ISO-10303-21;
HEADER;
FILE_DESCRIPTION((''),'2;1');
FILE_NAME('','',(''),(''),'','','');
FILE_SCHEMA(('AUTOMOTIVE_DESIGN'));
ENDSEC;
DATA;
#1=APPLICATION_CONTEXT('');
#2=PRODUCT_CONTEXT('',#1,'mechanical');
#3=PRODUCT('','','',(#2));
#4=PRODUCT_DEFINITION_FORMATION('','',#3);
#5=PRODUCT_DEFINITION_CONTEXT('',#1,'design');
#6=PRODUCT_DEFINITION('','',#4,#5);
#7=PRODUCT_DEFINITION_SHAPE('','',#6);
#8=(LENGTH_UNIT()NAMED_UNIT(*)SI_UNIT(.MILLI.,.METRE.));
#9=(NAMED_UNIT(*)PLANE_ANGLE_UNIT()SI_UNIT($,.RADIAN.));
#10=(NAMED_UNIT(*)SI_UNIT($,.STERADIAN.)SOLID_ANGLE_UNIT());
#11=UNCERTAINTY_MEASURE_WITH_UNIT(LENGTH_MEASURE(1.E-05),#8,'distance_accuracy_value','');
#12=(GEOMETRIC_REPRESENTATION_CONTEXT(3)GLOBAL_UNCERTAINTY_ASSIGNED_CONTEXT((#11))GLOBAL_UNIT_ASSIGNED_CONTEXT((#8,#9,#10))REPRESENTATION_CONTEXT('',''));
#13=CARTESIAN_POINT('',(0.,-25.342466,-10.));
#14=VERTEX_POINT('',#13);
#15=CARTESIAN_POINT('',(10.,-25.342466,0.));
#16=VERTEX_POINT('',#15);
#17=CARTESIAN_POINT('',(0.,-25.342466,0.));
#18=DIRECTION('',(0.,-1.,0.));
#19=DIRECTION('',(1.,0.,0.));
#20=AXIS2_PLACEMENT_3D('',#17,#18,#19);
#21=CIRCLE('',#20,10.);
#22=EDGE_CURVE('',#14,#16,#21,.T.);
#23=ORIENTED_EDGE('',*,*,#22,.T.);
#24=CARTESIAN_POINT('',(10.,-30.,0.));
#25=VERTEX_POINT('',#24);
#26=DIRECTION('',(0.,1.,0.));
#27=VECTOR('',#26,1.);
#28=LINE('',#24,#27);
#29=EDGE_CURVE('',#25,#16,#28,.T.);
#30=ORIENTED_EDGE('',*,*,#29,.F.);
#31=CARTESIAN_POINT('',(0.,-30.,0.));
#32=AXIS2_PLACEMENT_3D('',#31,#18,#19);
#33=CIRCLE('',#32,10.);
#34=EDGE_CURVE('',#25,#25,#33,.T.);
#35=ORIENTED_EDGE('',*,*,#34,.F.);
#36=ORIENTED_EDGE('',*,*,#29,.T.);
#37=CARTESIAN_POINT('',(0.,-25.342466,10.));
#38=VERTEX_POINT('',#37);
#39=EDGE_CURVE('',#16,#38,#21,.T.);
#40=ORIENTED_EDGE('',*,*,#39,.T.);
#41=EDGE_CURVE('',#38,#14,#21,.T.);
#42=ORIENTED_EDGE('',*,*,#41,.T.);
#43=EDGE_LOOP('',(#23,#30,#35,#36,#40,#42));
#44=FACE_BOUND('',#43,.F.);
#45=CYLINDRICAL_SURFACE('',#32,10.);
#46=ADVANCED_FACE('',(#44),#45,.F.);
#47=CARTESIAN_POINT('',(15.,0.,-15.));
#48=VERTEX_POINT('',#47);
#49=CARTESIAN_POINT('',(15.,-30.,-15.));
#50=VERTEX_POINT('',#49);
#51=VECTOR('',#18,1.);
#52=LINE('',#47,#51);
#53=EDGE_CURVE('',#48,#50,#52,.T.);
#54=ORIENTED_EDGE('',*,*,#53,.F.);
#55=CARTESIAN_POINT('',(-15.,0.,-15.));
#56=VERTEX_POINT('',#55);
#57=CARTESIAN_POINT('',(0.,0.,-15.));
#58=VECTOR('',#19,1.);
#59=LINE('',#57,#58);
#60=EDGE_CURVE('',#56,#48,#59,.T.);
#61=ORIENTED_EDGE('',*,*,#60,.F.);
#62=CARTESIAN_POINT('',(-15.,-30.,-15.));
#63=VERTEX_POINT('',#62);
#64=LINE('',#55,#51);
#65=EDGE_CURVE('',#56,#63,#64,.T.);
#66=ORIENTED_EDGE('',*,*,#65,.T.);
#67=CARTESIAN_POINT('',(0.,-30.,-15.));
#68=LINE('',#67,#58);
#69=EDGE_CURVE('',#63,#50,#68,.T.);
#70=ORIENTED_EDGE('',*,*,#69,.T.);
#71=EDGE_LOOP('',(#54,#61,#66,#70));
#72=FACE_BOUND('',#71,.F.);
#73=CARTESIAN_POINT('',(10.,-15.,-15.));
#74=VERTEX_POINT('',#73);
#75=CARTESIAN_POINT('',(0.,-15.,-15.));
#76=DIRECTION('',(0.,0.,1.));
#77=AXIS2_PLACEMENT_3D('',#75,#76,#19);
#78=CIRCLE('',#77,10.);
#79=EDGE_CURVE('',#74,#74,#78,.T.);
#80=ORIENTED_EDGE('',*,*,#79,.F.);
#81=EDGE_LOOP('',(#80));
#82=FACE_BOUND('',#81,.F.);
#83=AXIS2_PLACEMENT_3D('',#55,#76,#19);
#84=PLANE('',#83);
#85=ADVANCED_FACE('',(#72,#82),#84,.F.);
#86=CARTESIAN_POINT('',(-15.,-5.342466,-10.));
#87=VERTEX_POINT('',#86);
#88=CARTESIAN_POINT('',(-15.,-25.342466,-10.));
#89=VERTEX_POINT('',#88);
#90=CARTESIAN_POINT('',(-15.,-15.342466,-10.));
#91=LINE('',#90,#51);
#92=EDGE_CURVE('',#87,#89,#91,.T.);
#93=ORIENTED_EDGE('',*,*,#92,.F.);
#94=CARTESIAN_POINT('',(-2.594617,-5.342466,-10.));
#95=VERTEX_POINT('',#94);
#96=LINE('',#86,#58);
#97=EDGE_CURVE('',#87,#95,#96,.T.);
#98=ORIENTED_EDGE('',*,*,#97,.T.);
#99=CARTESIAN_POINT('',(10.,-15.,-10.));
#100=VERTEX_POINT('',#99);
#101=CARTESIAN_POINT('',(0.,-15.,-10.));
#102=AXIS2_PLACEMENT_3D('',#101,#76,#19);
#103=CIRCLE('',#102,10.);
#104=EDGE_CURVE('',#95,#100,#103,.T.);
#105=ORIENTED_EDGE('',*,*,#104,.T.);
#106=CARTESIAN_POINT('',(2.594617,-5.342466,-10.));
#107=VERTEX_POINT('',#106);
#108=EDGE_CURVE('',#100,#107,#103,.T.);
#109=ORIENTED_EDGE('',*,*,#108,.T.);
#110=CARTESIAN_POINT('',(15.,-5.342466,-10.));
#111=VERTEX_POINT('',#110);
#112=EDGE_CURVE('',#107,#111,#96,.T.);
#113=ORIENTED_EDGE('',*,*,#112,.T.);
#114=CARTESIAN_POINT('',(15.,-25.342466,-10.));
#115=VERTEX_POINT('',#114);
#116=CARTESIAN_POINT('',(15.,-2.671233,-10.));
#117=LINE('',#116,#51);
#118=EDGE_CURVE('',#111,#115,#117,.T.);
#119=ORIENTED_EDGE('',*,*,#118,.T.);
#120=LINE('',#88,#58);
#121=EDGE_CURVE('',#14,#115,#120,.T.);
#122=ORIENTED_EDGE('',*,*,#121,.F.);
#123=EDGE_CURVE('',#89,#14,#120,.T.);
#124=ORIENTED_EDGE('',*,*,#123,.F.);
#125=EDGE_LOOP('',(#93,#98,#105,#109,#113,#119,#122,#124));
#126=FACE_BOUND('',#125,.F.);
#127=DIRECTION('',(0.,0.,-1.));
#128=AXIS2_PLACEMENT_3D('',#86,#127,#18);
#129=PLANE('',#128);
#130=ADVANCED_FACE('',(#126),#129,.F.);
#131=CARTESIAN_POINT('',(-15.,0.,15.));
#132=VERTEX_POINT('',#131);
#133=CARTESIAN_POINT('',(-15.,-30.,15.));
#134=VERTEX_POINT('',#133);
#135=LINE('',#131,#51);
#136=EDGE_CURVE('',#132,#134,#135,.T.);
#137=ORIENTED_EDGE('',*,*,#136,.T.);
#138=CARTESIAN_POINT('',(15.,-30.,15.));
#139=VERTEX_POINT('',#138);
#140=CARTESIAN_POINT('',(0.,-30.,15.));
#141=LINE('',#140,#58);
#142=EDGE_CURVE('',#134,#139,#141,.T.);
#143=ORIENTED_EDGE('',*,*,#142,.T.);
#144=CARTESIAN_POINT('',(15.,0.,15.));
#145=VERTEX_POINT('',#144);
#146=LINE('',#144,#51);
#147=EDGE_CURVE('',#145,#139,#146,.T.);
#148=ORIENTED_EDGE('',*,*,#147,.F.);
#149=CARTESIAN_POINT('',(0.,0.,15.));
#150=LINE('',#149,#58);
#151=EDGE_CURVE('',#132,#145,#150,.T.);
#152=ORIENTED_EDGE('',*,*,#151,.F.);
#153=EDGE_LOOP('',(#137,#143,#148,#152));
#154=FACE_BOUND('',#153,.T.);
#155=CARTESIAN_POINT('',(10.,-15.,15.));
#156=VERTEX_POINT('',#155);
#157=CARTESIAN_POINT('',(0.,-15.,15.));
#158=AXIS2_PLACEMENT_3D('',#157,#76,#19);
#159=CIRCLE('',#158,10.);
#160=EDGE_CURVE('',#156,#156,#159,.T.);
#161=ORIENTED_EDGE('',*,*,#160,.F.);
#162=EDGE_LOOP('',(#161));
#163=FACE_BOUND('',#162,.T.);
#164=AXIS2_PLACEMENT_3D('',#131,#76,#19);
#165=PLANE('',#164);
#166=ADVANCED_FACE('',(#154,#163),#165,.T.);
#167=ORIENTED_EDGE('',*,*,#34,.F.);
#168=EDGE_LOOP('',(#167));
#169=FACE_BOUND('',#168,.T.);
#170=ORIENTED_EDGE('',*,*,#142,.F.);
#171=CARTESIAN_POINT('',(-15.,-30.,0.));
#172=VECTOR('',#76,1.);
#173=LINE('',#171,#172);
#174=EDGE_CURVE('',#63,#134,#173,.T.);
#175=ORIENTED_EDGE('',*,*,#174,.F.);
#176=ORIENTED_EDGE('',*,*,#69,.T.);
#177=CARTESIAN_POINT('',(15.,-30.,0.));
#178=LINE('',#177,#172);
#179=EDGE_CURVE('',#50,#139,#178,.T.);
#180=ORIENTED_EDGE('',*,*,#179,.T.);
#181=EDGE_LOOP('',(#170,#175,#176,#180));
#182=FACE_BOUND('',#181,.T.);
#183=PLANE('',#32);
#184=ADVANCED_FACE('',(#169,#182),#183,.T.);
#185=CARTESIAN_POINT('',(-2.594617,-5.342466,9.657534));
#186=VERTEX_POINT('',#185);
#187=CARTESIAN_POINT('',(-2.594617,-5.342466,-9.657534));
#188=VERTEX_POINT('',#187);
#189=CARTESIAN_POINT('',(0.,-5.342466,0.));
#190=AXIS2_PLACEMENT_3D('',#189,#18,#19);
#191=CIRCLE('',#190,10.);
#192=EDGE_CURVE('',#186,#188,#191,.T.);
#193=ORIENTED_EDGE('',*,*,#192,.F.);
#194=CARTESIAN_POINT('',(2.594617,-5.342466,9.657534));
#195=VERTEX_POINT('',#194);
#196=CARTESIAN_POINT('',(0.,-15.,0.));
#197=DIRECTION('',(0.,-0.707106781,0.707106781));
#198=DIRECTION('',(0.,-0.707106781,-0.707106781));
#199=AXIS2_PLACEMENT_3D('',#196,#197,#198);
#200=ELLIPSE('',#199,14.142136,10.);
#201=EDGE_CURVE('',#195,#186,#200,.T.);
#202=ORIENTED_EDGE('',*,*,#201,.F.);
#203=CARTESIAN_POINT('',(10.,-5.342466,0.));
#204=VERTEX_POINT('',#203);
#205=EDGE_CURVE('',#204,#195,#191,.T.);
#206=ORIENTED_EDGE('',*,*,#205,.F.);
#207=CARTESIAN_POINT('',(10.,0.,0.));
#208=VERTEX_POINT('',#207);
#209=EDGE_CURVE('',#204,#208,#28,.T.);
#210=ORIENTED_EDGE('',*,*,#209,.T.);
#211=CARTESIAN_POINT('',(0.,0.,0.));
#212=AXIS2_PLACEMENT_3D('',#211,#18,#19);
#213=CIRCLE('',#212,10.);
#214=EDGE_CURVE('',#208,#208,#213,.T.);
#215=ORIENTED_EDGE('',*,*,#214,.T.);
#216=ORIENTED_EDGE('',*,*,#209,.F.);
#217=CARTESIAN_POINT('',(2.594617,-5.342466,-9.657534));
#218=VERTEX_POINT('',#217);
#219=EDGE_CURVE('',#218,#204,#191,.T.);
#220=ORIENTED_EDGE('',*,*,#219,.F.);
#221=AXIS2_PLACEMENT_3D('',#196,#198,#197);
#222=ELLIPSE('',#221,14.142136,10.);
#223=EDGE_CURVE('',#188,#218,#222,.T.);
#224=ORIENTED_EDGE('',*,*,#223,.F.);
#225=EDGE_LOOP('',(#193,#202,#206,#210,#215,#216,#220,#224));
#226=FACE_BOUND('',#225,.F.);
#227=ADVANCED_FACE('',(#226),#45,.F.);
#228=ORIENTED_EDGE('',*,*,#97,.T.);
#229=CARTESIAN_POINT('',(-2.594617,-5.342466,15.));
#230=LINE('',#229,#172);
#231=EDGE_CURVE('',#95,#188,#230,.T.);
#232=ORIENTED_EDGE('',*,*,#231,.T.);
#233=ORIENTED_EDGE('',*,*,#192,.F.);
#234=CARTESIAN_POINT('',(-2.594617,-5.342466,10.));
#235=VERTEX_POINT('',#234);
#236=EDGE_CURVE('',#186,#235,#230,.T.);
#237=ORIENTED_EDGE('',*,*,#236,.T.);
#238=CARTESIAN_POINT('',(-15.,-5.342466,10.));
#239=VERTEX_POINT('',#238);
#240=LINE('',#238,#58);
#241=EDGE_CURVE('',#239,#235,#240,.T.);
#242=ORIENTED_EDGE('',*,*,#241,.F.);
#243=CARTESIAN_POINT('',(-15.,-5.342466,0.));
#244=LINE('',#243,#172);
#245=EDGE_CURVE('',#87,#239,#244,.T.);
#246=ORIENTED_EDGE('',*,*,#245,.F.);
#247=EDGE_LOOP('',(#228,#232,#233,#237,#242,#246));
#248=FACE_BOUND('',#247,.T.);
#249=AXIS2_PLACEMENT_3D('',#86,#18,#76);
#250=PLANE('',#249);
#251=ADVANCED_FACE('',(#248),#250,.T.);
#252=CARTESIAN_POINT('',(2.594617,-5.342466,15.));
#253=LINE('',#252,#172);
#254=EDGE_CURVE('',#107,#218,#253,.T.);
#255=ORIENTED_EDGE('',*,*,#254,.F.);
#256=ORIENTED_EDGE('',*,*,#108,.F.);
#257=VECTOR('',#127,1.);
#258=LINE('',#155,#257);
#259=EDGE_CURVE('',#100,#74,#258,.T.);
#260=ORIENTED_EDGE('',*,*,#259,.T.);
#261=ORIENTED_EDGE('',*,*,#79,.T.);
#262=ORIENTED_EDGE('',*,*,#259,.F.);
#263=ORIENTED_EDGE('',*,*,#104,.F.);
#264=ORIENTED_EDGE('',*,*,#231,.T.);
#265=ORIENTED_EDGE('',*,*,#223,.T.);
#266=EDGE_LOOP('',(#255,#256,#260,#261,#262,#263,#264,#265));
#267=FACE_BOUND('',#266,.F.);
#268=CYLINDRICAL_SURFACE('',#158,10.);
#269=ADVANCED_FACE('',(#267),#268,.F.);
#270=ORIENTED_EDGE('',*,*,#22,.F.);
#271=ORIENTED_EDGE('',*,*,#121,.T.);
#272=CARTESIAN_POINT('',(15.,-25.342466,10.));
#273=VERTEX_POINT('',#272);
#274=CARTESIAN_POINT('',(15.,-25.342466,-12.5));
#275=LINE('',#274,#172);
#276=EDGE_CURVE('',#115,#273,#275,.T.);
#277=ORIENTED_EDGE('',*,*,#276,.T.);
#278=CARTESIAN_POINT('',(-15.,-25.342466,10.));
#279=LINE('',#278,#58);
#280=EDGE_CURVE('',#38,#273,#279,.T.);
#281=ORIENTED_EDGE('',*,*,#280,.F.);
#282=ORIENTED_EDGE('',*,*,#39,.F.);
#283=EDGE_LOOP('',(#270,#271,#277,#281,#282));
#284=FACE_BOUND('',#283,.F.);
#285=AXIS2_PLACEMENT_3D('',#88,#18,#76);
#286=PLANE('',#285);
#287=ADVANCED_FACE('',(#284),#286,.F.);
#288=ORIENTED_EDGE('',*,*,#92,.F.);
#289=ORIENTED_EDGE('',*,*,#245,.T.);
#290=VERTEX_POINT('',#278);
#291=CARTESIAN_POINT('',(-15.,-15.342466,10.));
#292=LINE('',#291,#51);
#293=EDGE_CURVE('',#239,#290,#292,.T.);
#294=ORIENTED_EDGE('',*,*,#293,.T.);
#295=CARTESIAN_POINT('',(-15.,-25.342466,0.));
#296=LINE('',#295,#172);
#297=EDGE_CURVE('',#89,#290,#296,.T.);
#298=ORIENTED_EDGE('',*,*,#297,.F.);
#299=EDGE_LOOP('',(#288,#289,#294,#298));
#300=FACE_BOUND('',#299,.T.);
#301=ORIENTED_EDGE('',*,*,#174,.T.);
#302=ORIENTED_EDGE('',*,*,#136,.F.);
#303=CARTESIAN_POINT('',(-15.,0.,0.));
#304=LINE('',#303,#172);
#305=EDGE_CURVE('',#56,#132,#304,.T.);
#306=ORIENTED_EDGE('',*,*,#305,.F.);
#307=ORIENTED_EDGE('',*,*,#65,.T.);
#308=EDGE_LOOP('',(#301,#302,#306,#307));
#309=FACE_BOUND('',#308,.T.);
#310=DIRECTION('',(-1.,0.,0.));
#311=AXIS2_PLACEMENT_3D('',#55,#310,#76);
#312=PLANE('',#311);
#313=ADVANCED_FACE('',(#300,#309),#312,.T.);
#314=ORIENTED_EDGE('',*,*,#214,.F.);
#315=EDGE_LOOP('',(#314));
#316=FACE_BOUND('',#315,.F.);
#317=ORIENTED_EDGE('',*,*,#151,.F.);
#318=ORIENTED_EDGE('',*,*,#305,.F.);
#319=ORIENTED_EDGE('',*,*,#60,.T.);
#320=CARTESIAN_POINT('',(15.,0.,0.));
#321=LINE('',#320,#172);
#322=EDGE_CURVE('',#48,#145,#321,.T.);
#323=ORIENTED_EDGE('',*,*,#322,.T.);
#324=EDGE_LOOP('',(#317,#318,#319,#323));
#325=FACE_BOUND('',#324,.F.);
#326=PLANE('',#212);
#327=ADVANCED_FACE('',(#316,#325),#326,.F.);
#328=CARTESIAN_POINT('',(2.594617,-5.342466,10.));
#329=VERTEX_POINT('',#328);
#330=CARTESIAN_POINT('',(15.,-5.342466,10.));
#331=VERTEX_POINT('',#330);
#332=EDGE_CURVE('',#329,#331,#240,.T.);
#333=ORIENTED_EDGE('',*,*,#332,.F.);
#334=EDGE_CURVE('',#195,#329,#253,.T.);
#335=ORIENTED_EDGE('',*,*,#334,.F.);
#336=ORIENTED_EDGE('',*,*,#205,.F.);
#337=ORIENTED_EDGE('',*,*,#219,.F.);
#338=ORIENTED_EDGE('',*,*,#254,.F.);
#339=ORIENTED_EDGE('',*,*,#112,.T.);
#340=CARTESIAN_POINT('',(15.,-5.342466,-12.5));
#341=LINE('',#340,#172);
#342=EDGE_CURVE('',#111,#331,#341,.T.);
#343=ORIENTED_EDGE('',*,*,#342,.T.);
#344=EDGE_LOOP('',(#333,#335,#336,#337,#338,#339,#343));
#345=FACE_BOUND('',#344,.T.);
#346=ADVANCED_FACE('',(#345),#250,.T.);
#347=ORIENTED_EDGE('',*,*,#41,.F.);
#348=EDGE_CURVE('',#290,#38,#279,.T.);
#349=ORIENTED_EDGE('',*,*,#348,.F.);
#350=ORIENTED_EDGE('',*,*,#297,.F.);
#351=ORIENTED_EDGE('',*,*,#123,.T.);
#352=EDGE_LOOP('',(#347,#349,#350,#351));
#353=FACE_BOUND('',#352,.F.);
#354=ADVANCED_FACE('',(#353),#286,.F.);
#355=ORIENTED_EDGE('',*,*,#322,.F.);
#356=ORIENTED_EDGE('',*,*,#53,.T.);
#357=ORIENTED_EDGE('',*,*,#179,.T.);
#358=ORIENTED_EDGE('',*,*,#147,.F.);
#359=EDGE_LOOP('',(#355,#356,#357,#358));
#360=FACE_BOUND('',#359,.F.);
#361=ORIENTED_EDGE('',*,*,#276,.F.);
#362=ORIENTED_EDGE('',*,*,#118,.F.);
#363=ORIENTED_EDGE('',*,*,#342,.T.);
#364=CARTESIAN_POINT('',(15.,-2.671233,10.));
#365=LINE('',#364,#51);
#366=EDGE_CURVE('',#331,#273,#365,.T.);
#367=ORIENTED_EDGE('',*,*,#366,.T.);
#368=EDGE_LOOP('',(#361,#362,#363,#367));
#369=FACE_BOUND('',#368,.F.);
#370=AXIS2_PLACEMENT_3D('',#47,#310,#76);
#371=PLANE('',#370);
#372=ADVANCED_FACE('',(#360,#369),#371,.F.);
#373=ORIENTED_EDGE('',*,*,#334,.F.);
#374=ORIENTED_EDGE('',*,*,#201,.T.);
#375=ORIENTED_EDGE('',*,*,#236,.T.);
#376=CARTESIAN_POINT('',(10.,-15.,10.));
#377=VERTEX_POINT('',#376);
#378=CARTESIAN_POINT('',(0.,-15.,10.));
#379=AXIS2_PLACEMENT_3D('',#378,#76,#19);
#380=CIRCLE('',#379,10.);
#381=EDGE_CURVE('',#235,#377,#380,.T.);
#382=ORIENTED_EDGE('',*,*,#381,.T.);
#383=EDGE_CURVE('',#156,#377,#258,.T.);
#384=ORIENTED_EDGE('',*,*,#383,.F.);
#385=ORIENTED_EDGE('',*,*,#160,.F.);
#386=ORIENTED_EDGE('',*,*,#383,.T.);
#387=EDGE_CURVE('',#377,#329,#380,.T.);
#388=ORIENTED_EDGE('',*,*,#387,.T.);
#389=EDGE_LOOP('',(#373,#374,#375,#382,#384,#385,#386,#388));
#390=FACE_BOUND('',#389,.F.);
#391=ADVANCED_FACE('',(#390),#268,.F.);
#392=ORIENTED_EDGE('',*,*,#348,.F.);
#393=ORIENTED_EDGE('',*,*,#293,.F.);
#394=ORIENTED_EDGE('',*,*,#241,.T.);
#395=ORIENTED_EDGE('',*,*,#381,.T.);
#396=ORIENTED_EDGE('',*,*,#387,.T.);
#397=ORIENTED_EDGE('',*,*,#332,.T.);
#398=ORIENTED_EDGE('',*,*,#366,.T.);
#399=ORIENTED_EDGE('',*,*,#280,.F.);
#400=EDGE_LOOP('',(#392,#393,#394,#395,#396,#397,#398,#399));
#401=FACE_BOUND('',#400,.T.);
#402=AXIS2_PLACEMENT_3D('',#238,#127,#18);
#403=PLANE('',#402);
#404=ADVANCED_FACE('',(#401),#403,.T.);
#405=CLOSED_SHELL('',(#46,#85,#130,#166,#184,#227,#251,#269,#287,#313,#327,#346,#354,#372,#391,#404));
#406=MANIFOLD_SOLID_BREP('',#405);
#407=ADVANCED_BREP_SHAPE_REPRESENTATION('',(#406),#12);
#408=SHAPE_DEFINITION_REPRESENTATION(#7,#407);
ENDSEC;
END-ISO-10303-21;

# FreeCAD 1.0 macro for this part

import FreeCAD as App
import Part
import Sketcher

V = App.Vector
Q = App.Units.Quantity


def add_polygon(sketch, points):
    """Adds a closed chain of lines whose ends are joined by coincident constraints."""
    first, n = sketch.GeometryCount, len(points)
    for a, b in zip(points, points[1:] + points[:1]):
        sketch.addGeometry(Part.LineSegment(App.Vector(*a, 0), App.Vector(*b, 0)), False)
    for i in range(n):
        sketch.addConstraint(Sketcher.Constraint("Coincident", first + i, 2, first + (i + 1) % n, 1))

doc = App.newDocument("Part")
params = doc.addObject("Spreadsheet::Sheet", "Params")
for row, (alias, value) in enumerate([
    ("sketch1_width", "30 mm"),
    ("pad1_length", "30 mm"),
    ("sketch2_diameter", "20 mm"),
    ("sketch3_width", "20 mm"),
    ("sketch4_diameter", "20 mm"),
], start=1):
    params.set(f"A{row}", alias)
    params.set(f"B{row}", "=" + value)
    params.setAlias(f"B{row}", alias)

body = doc.addObject("PartDesign::Body", "Body")

# Sketch on XZ plane
sketch1 = doc.addObject("Sketcher::SketchObject", "Sketch")
body.addObject(sketch1)
sketch1.AttachmentSupport = (doc.XZ_Plane, [""])
sketch1.MapMode = "FlatFace"
add_polygon(sketch1, [(-15, 15), (-15, -15), (15, -15), (15, 15)])  # lines 0-3
sketch1.addConstraint([
    Sketcher.Constraint("Vertical", 0),
    Sketcher.Constraint("Horizontal", 1),
    Sketcher.Constraint("Vertical", 2),
    Sketcher.Constraint("Horizontal", 3),
    Sketcher.Constraint("Symmetric", 0, 2, 2, 2, -1, 1),
    Sketcher.Constraint("Equal", 3, 0),
    Sketcher.Constraint("DistanceX", 1, 1, 1, 2, Q("30 mm")),
])
sketch1.setExpression("Constraints[10]", "Params.sketch1_width")
pad1 = doc.addObject("PartDesign::Pad", "Pad")
body.addObject(pad1)
pad1.Profile = sketch1
pad1.setExpression("Length", "Params.pad1_length")

# Sketch on XZ plane
sketch2 = doc.addObject("Sketcher::SketchObject", "Sketch001")
body.addObject(sketch2)
sketch2.AttachmentSupport = (doc.XZ_Plane, [""])
sketch2.MapMode = "FlatFace"
sketch2.AttachmentOffset = App.Placement(V(0, 0, 30), App.Rotation())
sketch2.addGeometry(Part.Circle(V(0, 0, 0), V(0, 0, 1), 10), False)
sketch2.addConstraint([
    Sketcher.Constraint("Coincident", 0, 3, -1, 1),
    Sketcher.Constraint("Diameter", 0, Q("20 mm")),
])
sketch2.setExpression("Constraints[1]", "Params.sketch2_diameter")
pocket1 = doc.addObject("PartDesign::Pocket", "Pocket")
body.addObject(pocket1)
pocket1.Profile = sketch2
pocket1.Type = "ThroughAll"

# Sketch on YZ plane
sketch3 = doc.addObject("Sketcher::SketchObject", "Sketch002")
body.addObject(sketch3)
sketch3.AttachmentSupport = (doc.YZ_Plane, [""])
sketch3.MapMode = "FlatFace"
sketch3.AttachmentOffset = App.Placement(V(0, 0, -15), App.Rotation())
add_polygon(sketch3, [(-5, 10), (-5, -10), (-25, -10), (-25, 10)])  # lines 0-3
sketch3.addConstraint([
    Sketcher.Constraint("Vertical", 0),
    Sketcher.Constraint("Horizontal", 1),
    Sketcher.Constraint("Vertical", 2),
    Sketcher.Constraint("Horizontal", 3),
    Sketcher.Constraint("Equal", 3, 0),
    Sketcher.Constraint("DistanceX", 1, 2, 1, 1, Q("20 mm")),
    Sketcher.Constraint("DistanceY", 0, 2, -1, 1, Q("10 mm")),
    Sketcher.Constraint("DistanceX", 0, 2, -1, 1, Q("5.342466 mm")),
])
sketch3.setExpression("Constraints[9]", "Params.sketch3_width")
pocket2 = doc.addObject("PartDesign::Pocket", "Pocket001")
body.addObject(pocket2)
pocket2.Profile = sketch3
pocket2.Type = "ThroughAll"
pocket2.Reversed = True

# Sketch on XY plane
sketch4 = doc.addObject("Sketcher::SketchObject", "Sketch003")
body.addObject(sketch4)
sketch4.AttachmentSupport = (doc.XY_Plane, [""])
sketch4.MapMode = "FlatFace"
sketch4.AttachmentOffset = App.Placement(V(0, 0, 15), App.Rotation())
sketch4.addGeometry(Part.Circle(V(0, -15, 0), V(0, 0, 1), 10), False)
sketch4.addConstraint([
    Sketcher.Constraint("PointOnObject", 0, 3, -2),
    Sketcher.Constraint("Diameter", 0, Q("20 mm")),
    Sketcher.Constraint("DistanceY", 0, 3, -1, 1, Q("15 mm")),
])
sketch4.setExpression("Constraints[1]", "Params.sketch4_diameter")
pocket3 = doc.addObject("PartDesign::Pocket", "Pocket002")
body.addObject(pocket3)
pocket3.Profile = sketch4
pocket3.Type = "ThroughAll"

doc.recompute()
